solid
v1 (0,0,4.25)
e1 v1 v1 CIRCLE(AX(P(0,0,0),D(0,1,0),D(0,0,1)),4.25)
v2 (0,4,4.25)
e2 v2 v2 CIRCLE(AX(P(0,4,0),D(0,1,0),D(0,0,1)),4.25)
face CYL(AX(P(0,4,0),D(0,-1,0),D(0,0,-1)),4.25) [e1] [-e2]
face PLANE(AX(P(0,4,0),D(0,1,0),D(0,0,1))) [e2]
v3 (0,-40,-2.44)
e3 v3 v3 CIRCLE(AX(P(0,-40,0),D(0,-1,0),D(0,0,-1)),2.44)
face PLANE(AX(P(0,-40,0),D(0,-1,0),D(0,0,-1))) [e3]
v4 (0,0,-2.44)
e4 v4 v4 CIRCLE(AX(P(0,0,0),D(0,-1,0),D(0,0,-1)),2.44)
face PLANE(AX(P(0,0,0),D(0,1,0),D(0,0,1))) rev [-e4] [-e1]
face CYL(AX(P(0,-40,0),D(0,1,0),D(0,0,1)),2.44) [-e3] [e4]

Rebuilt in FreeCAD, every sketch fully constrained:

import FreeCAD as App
import Part
import Sketcher

V = App.Vector

doc = App.newDocument("Part")
body = doc.addObject("PartDesign::Body", "Body")

# Sketch on XZ plane
sketch1 = doc.addObject("Sketcher::SketchObject", "Sketch")
body.addObject(sketch1)
sketch1.AttachmentSupport = (doc.XZ_Plane, [""])
sketch1.MapMode = "FlatFace"
sketch1.addGeometry(Part.Circle(V(0, 0, 0), V(0, 0, 1), 4.2), False)
sketch1.addConstraint(Sketcher.Constraint("Coincident", 0, 3, -1, 1))
sketch1.addConstraint(Sketcher.Constraint("Diameter", 0, 8.5))
pad1 = doc.addObject("PartDesign::Pad", "Pad")
body.addObject(pad1)
pad1.Profile = sketch1
pad1.Length = 4
pad1.Reversed = True

# Sketch on XZ plane
sketch2 = doc.addObject("Sketcher::SketchObject", "Sketch001")
body.addObject(sketch2)
sketch2.AttachmentSupport = (doc.XZ_Plane, [""])
sketch2.MapMode = "FlatFace"
sketch2.addGeometry(Part.Circle(V(0, 0, 0), V(0, 0, 1), 2.4), False)
sketch2.addConstraint(Sketcher.Constraint("Coincident", 0, 3, -1, 1))
sketch2.addConstraint(Sketcher.Constraint("Diameter", 0, 4.88))
pad2 = doc.addObject("PartDesign::Pad", "Pad001")
body.addObject(pad2)
pad2.Profile = sketch2
pad2.Length = 40

doc.recompute()
